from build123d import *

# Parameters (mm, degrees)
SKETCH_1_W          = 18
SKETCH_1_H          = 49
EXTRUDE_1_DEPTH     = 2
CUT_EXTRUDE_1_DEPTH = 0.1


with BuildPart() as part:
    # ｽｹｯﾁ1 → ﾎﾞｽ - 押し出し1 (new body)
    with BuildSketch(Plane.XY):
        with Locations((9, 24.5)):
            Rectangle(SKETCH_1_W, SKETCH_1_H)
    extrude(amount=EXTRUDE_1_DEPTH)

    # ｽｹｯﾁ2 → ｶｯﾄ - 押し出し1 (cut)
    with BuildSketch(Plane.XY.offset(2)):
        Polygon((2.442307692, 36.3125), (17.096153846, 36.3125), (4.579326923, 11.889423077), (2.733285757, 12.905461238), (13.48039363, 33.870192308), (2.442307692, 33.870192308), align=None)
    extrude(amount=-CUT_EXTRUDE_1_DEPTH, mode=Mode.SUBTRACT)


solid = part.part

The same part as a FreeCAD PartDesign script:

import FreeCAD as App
import Part
import Sketcher

V = App.Vector

doc = App.newDocument("Part")
params = doc.addObject("Spreadsheet::Sheet", "Params")
for row, (alias, value) in enumerate([
    ("sketch1_width", "18 mm"),
    ("sketch1_height", "49 mm"),
    ("pad1_length", "2 mm"),
    ("pocket1_length", "0.1 mm"),
], start=1):
    params.set(f"A{row}", alias)
    params.set(f"B{row}", "=" + value)
    params.setAlias(f"B{row}", alias)

body = doc.addObject("PartDesign::Body", "Body")

# Sketch on XY plane
sketch1 = body.newObject("Sketcher::SketchObject", "Sketch")
sketch1.AttachmentSupport = (doc.getObject("XY_Plane"), [""])
sketch1.MapMode = "FlatFace"
sketch1.addGeometry([
    Part.LineSegment(V(0, 49, 0), V(0, 0, 0)),
    Part.LineSegment(V(0, 0, 0), V(18, 0, 0)),
    Part.LineSegment(V(18, 0, 0), V(18, 49, 0)),
    Part.LineSegment(V(18, 49, 0), V(0, 49, 0)),
], False)
sketch1.addConstraint([
    Sketcher.Constraint("Coincident", 0, 2, 1, 1),
    Sketcher.Constraint("Coincident", 1, 2, 2, 1),
    Sketcher.Constraint("Coincident", 2, 2, 3, 1),
    Sketcher.Constraint("Coincident", 3, 2, 0, 1),
    Sketcher.Constraint("Vertical", 0),
    Sketcher.Constraint("Horizontal", 1),
    Sketcher.Constraint("Vertical", 2),
    Sketcher.Constraint("Horizontal", 3),
    Sketcher.Constraint("Coincident", 0, 2, -1, 1),
    Sketcher.Constraint("DistanceX", 1, 1, 1, 2, 18.0),
    Sketcher.Constraint("DistanceY", 0, 2, 0, 1, 49.0),
])
sketch1.setExpression("Constraints[9]", "Params.sketch1_width")
sketch1.setExpression("Constraints[10]", "Params.sketch1_height")
pad1 = body.newObject("PartDesign::Pad", "Pad")
pad1.Profile = sketch1
pad1.setExpression("Length", "Params.pad1_length")

# Sketch on XY plane
sketch2 = body.newObject("Sketcher::SketchObject", "Sketch001")
sketch2.AttachmentSupport = (doc.getObject("XY_Plane"), [""])
sketch2.MapMode = "FlatFace"
sketch2.AttachmentOffset = App.Placement(V(0, 0, 2), App.Rotation())
sketch2.addGeometry([
    Part.LineSegment(V(17.1, 36.3, 0), V(2.4, 36.3, 0)),  # 0
    Part.LineSegment(V(2.4, 36.3, 0), V(2.4, 33.9, 0)),  # 1
    Part.LineSegment(V(2.4, 33.9, 0), V(13.5, 33.9, 0)),  # 2
    Part.LineSegment(V(13.5, 33.9, 0), V(2.7, 12.9, 0)),  # 3
    Part.LineSegment(V(2.7, 12.9, 0), V(4.6, 11.9, 0)),  # 4
    Part.LineSegment(V(4.6, 11.9, 0), V(17.1, 36.3, 0)),  # 5
], False)
sketch2.addConstraint([
    Sketcher.Constraint("Coincident", 0, 2, 1, 1),
    Sketcher.Constraint("Coincident", 1, 2, 2, 1),
    Sketcher.Constraint("Coincident", 2, 2, 3, 1),
    Sketcher.Constraint("Coincident", 3, 2, 4, 1),
    Sketcher.Constraint("Coincident", 4, 2, 5, 1),
    Sketcher.Constraint("Coincident", 5, 2, 0, 1),
    Sketcher.Constraint("Horizontal", 0),
    Sketcher.Constraint("Vertical", 1),
    Sketcher.Constraint("Horizontal", 2),
    Sketcher.Constraint("DistanceY", -1, 1, 0, 2, 36.3125),
    Sketcher.Constraint("Distance", 3, 23.558868),
    Sketcher.Constraint("Distance", 4, 2.107179),
    Sketcher.Constraint("DistanceX", 0, 2, 0, 1, 14.653846),
    Sketcher.Constraint("DistanceX", 2, 1, 2, 2, 11.038086),
    Sketcher.Constraint("DistanceY", 1, 2, 1, 1, 2.442308),
    Sketcher.Constraint("DistanceY", -1, 1, 3, 2, 12.905461),
    Sketcher.Constraint("DistanceX", 3, 2, 4, 2, 1.846041),
    Sketcher.Constraint("DistanceX", -1, 1, 0, 2, 2.442308),
])
pocket1 = body.newObject("PartDesign::Pocket", "Pocket")
pocket1.Profile = sketch2
pocket1.setExpression("Length", "Params.pocket1_length")

doc.recompute()
